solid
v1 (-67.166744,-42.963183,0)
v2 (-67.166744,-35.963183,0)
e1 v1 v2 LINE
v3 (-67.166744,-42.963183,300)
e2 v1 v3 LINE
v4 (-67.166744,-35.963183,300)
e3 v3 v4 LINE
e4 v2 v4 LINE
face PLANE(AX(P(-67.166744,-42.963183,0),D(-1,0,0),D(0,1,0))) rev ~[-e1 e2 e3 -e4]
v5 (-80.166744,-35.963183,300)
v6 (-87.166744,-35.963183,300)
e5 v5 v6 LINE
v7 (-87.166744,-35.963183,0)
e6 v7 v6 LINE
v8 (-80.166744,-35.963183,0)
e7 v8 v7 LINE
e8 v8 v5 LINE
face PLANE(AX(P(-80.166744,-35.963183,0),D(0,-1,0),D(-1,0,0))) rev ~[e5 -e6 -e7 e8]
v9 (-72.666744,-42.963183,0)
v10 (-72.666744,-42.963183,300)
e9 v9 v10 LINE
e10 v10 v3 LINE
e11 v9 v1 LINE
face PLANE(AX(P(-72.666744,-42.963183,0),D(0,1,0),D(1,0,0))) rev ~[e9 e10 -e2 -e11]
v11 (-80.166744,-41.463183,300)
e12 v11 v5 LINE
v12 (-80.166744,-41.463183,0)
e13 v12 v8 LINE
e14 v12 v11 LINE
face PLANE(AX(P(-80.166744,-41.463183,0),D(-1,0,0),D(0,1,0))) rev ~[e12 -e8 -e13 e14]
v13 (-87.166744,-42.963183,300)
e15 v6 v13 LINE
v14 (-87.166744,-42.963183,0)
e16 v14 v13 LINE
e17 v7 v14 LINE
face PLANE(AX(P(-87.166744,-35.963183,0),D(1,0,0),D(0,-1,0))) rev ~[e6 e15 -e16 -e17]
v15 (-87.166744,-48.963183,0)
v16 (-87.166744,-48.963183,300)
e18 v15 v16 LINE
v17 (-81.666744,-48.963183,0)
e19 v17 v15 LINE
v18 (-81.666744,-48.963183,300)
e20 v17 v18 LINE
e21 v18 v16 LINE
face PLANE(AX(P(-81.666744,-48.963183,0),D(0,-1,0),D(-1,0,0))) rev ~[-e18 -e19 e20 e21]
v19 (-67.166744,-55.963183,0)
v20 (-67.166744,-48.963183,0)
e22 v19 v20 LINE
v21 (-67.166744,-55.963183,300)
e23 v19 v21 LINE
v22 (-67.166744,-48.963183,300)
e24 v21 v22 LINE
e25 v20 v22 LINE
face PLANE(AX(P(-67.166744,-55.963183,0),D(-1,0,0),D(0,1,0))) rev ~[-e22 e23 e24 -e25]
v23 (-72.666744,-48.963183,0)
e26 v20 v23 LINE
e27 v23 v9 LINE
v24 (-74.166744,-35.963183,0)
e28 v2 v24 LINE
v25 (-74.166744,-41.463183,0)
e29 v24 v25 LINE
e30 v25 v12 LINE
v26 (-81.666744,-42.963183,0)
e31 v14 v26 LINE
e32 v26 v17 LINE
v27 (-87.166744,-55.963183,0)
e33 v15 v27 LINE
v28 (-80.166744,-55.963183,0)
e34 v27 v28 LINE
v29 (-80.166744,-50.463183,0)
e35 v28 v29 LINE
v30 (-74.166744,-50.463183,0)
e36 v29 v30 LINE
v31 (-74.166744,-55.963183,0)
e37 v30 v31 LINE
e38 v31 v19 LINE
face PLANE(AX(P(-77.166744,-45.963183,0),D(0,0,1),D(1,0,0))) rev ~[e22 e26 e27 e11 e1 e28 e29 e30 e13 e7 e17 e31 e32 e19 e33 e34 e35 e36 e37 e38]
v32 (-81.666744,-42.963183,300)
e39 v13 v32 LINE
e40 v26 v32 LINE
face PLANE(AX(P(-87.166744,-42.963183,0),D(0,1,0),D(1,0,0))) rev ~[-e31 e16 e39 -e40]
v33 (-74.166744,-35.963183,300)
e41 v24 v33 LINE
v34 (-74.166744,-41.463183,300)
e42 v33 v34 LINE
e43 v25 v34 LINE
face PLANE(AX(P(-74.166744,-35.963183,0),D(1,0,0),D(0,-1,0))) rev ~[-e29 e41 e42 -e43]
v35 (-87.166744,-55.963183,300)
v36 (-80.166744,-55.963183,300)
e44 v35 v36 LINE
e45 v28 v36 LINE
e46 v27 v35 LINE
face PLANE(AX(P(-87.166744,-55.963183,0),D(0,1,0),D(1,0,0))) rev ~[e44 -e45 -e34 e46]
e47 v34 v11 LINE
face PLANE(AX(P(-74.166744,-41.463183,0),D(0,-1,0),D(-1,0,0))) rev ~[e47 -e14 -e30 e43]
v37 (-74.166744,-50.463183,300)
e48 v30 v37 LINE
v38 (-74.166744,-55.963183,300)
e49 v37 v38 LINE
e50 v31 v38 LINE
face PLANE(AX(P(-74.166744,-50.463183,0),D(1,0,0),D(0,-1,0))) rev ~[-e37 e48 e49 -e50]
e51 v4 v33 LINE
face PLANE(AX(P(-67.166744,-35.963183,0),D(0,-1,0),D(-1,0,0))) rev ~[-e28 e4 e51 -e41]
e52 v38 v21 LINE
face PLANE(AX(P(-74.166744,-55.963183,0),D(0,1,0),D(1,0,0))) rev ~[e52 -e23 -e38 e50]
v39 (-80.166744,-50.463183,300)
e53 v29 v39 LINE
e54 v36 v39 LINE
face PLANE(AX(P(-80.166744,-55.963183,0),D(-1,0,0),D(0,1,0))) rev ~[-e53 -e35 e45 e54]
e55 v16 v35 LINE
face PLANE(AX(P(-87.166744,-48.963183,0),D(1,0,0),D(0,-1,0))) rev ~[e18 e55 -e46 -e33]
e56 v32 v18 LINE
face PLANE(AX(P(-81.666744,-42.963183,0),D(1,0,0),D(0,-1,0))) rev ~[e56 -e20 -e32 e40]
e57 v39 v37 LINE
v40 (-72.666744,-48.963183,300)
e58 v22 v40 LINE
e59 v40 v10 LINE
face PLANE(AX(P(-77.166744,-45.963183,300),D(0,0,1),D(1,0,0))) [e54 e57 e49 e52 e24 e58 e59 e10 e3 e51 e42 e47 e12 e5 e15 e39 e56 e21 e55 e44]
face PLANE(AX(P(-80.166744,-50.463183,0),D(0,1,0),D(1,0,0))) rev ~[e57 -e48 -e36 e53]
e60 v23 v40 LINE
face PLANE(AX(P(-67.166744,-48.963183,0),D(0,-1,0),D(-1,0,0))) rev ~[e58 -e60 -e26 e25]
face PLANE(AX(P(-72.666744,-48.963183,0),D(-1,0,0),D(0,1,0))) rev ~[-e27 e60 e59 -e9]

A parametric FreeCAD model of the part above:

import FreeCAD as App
import Part
import Sketcher
from FreeCAD import Vector

doc = App.newDocument("Part")
body = doc.addObject("PartDesign::Body", "Body")

sketch1 = body.newObject("Sketcher::SketchObject", "Sketch")
sketch1.AttachmentSupport = (doc.getObject("XY_Plane"), [""])
sketch1.MapMode = "FlatFace"
sketch1.addGeometry(Part.LineSegment(Vector(-87, -49, 0), Vector(-87, -56, 0)), False)
sketch1.addGeometry(Part.LineSegment(Vector(-87, -56, 0), Vector(-80, -56, 0)), False)
sketch1.addGeometry(Part.LineSegment(Vector(-80, -56, 0), Vector(-80, -50, 0)), False)
sketch1.addGeometry(Part.LineSegment(Vector(-80, -50, 0), Vector(-74, -50, 0)), False)
sketch1.addGeometry(Part.LineSegment(Vector(-74, -50, 0), Vector(-74, -56, 0)), False)
sketch1.addGeometry(Part.LineSegment(Vector(-74, -56, 0), Vector(-67, -56, 0)), False)
sketch1.addGeometry(Part.LineSegment(Vector(-67, -56, 0), Vector(-67, -49, 0)), False)
sketch1.addGeometry(Part.LineSegment(Vector(-67, -49, 0), Vector(-73, -49, 0)), False)
sketch1.addGeometry(Part.LineSegment(Vector(-73, -49, 0), Vector(-73, -43, 0)), False)
sketch1.addGeometry(Part.LineSegment(Vector(-73, -43, 0), Vector(-67, -43, 0)), False)
sketch1.addGeometry(Part.LineSegment(Vector(-67, -43, 0), Vector(-67, -36, 0)), False)
sketch1.addGeometry(Part.LineSegment(Vector(-67, -36, 0), Vector(-74, -36, 0)), False)
sketch1.addGeometry(Part.LineSegment(Vector(-74, -36, 0), Vector(-74, -41, 0)), False)
sketch1.addGeometry(Part.LineSegment(Vector(-74, -41, 0), Vector(-80, -41, 0)), False)
sketch1.addGeometry(Part.LineSegment(Vector(-80, -41, 0), Vector(-80, -36, 0)), False)
sketch1.addGeometry(Part.LineSegment(Vector(-80, -36, 0), Vector(-87, -36, 0)), False)
sketch1.addGeometry(Part.LineSegment(Vector(-87, -36, 0), Vector(-87, -43, 0)), False)
sketch1.addGeometry(Part.LineSegment(Vector(-87, -43, 0), Vector(-82, -43, 0)), False)
sketch1.addGeometry(Part.LineSegment(Vector(-82, -43, 0), Vector(-82, -49, 0)), False)
sketch1.addGeometry(Part.LineSegment(Vector(-82, -49, 0), Vector(-87, -49, 0)), False)
sketch1.addConstraint(Sketcher.Constraint("Coincident", 0, 2, 1, 1))
sketch1.addConstraint(Sketcher.Constraint("Coincident", 1, 2, 2, 1))
sketch1.addConstraint(Sketcher.Constraint("Coincident", 2, 2, 3, 1))
sketch1.addConstraint(Sketcher.Constraint("Coincident", 3, 2, 4, 1))
sketch1.addConstraint(Sketcher.Constraint("Coincident", 4, 2, 5, 1))
sketch1.addConstraint(Sketcher.Constraint("Coincident", 5, 2, 6, 1))
sketch1.addConstraint(Sketcher.Constraint("Coincident", 6, 2, 7, 1))
sketch1.addConstraint(Sketcher.Constraint("Coincident", 7, 2, 8, 1))
sketch1.addConstraint(Sketcher.Constraint("Coincident", 8, 2, 9, 1))
sketch1.addConstraint(Sketcher.Constraint("Coincident", 9, 2, 10, 1))
sketch1.addConstraint(Sketcher.Constraint("Coincident", 10, 2, 11, 1))
sketch1.addConstraint(Sketcher.Constraint("Coincident", 11, 2, 12, 1))
sketch1.addConstraint(Sketcher.Constraint("Coincident", 12, 2, 13, 1))
sketch1.addConstraint(Sketcher.Constraint("Coincident", 13, 2, 14, 1))
sketch1.addConstraint(Sketcher.Constraint("Coincident", 14, 2, 15, 1))
sketch1.addConstraint(Sketcher.Constraint("Coincident", 15, 2, 16, 1))
sketch1.addConstraint(Sketcher.Constraint("Coincident", 16, 2, 17, 1))
sketch1.addConstraint(Sketcher.Constraint("Coincident", 17, 2, 18, 1))
sketch1.addConstraint(Sketcher.Constraint("Coincident", 18, 2, 19, 1))
sketch1.addConstraint(Sketcher.Constraint("Coincident", 19, 2, 0, 1))
sketch1.addConstraint(Sketcher.Constraint("Vertical", 0))
sketch1.addConstraint(Sketcher.Constraint("Horizontal", 1))
sketch1.addConstraint(Sketcher.Constraint("Vertical", 2))
sketch1.addConstraint(Sketcher.Constraint("Horizontal", 3))
sketch1.addConstraint(Sketcher.Constraint("Vertical", 4))
sketch1.addConstraint(Sketcher.Constraint("Horizontal", 5))
sketch1.addConstraint(Sketcher.Constraint("Vertical", 6))
sketch1.addConstraint(Sketcher.Constraint("Horizontal", 7))
sketch1.addConstraint(Sketcher.Constraint("Vertical", 8))
sketch1.addConstraint(Sketcher.Constraint("Horizontal", 9))
sketch1.addConstraint(Sketcher.Constraint("Vertical", 10))
sketch1.addConstraint(Sketcher.Constraint("Horizontal", 11))
sketch1.addConstraint(Sketcher.Constraint("Vertical", 12))
sketch1.addConstraint(Sketcher.Constraint("Horizontal", 13))
sketch1.addConstraint(Sketcher.Constraint("Vertical", 14))
sketch1.addConstraint(Sketcher.Constraint("Horizontal", 15))
sketch1.addConstraint(Sketcher.Constraint("Vertical", 16))
sketch1.addConstraint(Sketcher.Constraint("Horizontal", 17))
sketch1.addConstraint(Sketcher.Constraint("Vertical", 18))
sketch1.addConstraint(Sketcher.Constraint("Horizontal", 19))
sketch1.addConstraint(Sketcher.Constraint("Horizontal", 1, 2, 4, 2))
sketch1.addConstraint(Sketcher.Constraint("Horizontal", 11, 2, 14, 2))
sketch1.addConstraint(Sketcher.Constraint("Horizontal", 9, 2, 16, 2))
sketch1.addConstraint(Sketcher.Constraint("Horizontal", 7, 2, 18, 2))
sketch1.addConstraint(Sketcher.Constraint("Vertical", 6, 2, 9, 2))
sketch1.addConstraint(Sketcher.Constraint("Vertical", 4, 2, 11, 2))
sketch1.addConstraint(Sketcher.Constraint("Vertical", 2, 2, 13, 2))
sketch1.addConstraint(Sketcher.Constraint("Vertical", 0, 2, 15, 2))
sketch1.addConstraint(Sketcher.Constraint("Equal", 1, 5))
sketch1.addConstraint(Sketcher.Constraint("Equal", 9, 17))
sketch1.addConstraint(Sketcher.Constraint("Equal", 15, 0))
sketch1.addConstraint(Sketcher.Constraint("Equal", 19, 2))
sketch1.addConstraint(Sketcher.Constraint("Equal", 13, 8))
sketch1.addConstraint(Sketcher.Constraint("Equal", 6, 10))
sketch1.addConstraint(Sketcher.Constraint("Equal", 4, 12))
sketch1.addConstraint(Sketcher.Constraint("DistanceX", 1, 1, 1, 2, 7.0))
sketch1.addConstraint(Sketcher.Constraint("DistanceX", 3, 1, 3, 2, 6.0))
sketch1.addConstraint(Sketcher.Constraint("DistanceX", 7, 2, 7, 1, 5.5))
sketch1.addConstraint(Sketcher.Constraint("DistanceX", 0, 2, -1, 1, 87.166744))
sketch1.addConstraint(Sketcher.Constraint("DistanceY", 0, 2, -1, 1, 55.963183))
pad1 = body.newObject("PartDesign::Pad", "Pad")
pad1.Profile = sketch1
pad1.Length = 300

doc.recompute()
